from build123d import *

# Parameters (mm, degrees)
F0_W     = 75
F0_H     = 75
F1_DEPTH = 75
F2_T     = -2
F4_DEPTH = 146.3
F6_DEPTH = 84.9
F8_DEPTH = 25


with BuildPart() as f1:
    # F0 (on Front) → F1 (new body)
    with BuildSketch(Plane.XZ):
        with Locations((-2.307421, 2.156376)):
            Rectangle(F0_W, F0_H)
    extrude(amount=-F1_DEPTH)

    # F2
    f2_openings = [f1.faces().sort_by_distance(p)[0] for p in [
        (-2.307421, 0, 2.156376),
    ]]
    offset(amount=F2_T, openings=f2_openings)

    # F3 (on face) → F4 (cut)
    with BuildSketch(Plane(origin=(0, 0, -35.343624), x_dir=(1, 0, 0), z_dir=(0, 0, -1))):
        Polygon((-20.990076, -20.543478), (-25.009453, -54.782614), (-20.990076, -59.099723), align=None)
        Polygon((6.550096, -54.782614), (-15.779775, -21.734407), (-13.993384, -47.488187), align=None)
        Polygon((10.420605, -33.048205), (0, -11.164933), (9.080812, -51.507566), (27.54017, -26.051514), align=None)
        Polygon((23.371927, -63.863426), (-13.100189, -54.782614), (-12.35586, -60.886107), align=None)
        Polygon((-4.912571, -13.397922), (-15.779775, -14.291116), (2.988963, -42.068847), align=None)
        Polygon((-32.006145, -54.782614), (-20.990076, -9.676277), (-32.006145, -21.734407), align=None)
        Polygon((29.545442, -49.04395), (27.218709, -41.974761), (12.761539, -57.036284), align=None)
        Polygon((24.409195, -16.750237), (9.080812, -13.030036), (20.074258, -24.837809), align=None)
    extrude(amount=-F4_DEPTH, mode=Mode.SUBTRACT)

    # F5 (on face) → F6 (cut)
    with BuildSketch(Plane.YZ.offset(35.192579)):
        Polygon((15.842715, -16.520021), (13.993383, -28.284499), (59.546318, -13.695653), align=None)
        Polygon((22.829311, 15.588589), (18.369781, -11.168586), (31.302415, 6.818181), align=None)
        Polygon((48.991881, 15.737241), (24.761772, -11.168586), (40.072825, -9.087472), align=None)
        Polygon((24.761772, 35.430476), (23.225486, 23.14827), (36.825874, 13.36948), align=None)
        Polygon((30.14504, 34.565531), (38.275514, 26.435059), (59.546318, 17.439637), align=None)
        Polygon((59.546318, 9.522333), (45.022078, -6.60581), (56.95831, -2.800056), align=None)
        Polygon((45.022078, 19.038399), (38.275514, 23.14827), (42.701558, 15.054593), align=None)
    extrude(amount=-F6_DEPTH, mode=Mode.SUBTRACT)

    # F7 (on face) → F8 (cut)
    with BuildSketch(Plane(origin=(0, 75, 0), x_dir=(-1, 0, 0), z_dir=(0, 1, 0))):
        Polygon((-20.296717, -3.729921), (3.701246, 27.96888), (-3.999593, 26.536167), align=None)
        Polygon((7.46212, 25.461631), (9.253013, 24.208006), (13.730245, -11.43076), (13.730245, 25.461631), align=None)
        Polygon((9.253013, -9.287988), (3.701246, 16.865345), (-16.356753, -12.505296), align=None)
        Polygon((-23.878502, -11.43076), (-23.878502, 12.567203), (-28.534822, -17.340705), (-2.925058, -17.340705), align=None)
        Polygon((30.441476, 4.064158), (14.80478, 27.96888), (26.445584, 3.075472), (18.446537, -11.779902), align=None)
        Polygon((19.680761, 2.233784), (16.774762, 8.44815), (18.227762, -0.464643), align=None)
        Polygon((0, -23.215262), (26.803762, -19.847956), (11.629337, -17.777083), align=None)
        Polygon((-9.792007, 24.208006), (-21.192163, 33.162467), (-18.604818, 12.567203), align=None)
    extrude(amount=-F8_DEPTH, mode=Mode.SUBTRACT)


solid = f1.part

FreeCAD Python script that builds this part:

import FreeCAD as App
import Part
import Sketcher


def faces_at(feature, points):
    """Names of the faces that lie closest to the given points."""
    faces = feature.Shape.Faces
    near = lambda p: min(range(len(faces)), key=lambda i: faces[i].distToShape(Part.Vertex(*p))[0])
    return sorted({f"Face{near(p) + 1}" for p in points})

doc = App.newDocument("Part")
body = doc.addObject("PartDesign::Body", "Body")

sketch1 = body.newObject("Sketcher::SketchObject", "Sketch")
sketch1.AttachmentSupport = (doc.getObject("XZ_Plane"), [""])
sketch1.MapMode = "FlatFace"
sketch1.addGeometry([
    Part.LineSegment(App.Vector(-40, 40, 0), App.Vector(-40, -35, 0)),
    Part.LineSegment(App.Vector(-40, -35, 0), App.Vector(35, -35, 0)),
    Part.LineSegment(App.Vector(35, -35, 0), App.Vector(35, 40, 0)),
    Part.LineSegment(App.Vector(35, 40, 0), App.Vector(-40, 40, 0)),
], False)
sketch1.addConstraint([
    Sketcher.Constraint("Coincident", 0, 2, 1, 1),
    Sketcher.Constraint("Coincident", 1, 2, 2, 1),
    Sketcher.Constraint("Coincident", 2, 2, 3, 1),
    Sketcher.Constraint("Coincident", 3, 2, 0, 1),
    Sketcher.Constraint("Vertical", 0),
    Sketcher.Constraint("Horizontal", 1),
    Sketcher.Constraint("Vertical", 2),
    Sketcher.Constraint("Horizontal", 3),
    Sketcher.Constraint("Equal", 3, 0),
    Sketcher.Constraint("DistanceX", 1, 1, 1, 2, 75.0),
    Sketcher.Constraint("DistanceX", 0, 2, -1, 1, 39.807421),
    Sketcher.Constraint("DistanceY", 0, 2, -1, 1, 35.343624),
])
pad1 = body.newObject("PartDesign::Pad", "Pad")
pad1.Profile = sketch1
pad1.Length = 75
pad1.Reversed = True
doc.recompute()

thickness = body.newObject("PartDesign::Thickness", "Thickness")
thickness.Base = (pad1, faces_at(pad1, [(-2.307, 0, 2.156)]))
thickness.Value = 2
thickness.Reversed = True
thickness.Join = "Arc"

sketch2 = body.newObject("Sketcher::SketchObject", "Sketch001")
sketch2.AttachmentSupport = (doc.getObject("XY_Plane"), [""])
sketch2.MapMode = "FlatFace"
sketch2.AttachmentOffset = App.Placement(App.Vector(0, 0, -35.343624), App.Rotation())
sketch2.addGeometry([
    Part.LineSegment(App.Vector(-21, 21, 0), App.Vector(-25, 55, 0)),
    Part.LineSegment(App.Vector(-25, 55, 0), App.Vector(-21, 59, 0)),
    Part.LineSegment(App.Vector(-21, 59, 0), App.Vector(-21, 21, 0)),
    Part.LineSegment(App.Vector(7, 55, 0), App.Vector(-16, 22, 0)),
    Part.LineSegment(App.Vector(-16, 22, 0), App.Vector(-14, 47, 0)),
    Part.LineSegment(App.Vector(-14, 47, 0), App.Vector(7, 55, 0)),
    Part.LineSegment(App.Vector(10, 33, 0), App.Vector(0, 11, 0)),
    Part.LineSegment(App.Vector(0, 11, 0), App.Vector(9, 52, 0)),
    Part.LineSegment(App.Vector(9, 52, 0), App.Vector(28, 26, 0)),
    Part.LineSegment(App.Vector(28, 26, 0), App.Vector(10, 33, 0)),
    Part.LineSegment(App.Vector(23, 64, 0), App.Vector(-13, 55, 0)),
    Part.LineSegment(App.Vector(-13, 55, 0), App.Vector(-12, 61, 0)),
    Part.LineSegment(App.Vector(-12, 61, 0), App.Vector(23, 64, 0)),
    Part.LineSegment(App.Vector(-5, 13, 0), App.Vector(-16, 14, 0)),
    Part.LineSegment(App.Vector(-16, 14, 0), App.Vector(3, 42, 0)),
    Part.LineSegment(App.Vector(3, 42, 0), App.Vector(-5, 13, 0)),
    Part.LineSegment(App.Vector(-32, 55, 0), App.Vector(-21, 10, 0)),
    Part.LineSegment(App.Vector(-21, 10, 0), App.Vector(-32, 22, 0)),
    Part.LineSegment(App.Vector(-32, 22, 0), App.Vector(-32, 55, 0)),
    Part.LineSegment(App.Vector(30, 49, 0), App.Vector(27, 42, 0)),
    Part.LineSegment(App.Vector(27, 42, 0), App.Vector(13, 57, 0)),
    Part.LineSegment(App.Vector(13, 57, 0), App.Vector(30, 49, 0)),
    Part.LineSegment(App.Vector(24, 17, 0), App.Vector(9, 13, 0)),
    Part.LineSegment(App.Vector(9, 13, 0), App.Vector(20, 25, 0)),
    Part.LineSegment(App.Vector(20, 25, 0), App.Vector(24, 17, 0)),
], False)
sketch2.addConstraint([
    Sketcher.Constraint("Coincident", 0, 2, 1, 1),
    Sketcher.Constraint("Coincident", 1, 2, 2, 1),
    Sketcher.Constraint("Coincident", 2, 2, 0, 1),
    Sketcher.Constraint("Coincident", 3, 2, 4, 1),
    Sketcher.Constraint("Coincident", 4, 2, 5, 1),
    Sketcher.Constraint("Coincident", 5, 2, 3, 1),
    Sketcher.Constraint("Coincident", 6, 2, 7, 1),
    Sketcher.Constraint("Coincident", 7, 2, 8, 1),
    Sketcher.Constraint("Coincident", 8, 2, 9, 1),
    Sketcher.Constraint("Coincident", 9, 2, 6, 1),
    Sketcher.Constraint("Coincident", 10, 2, 11, 1),
    Sketcher.Constraint("Coincident", 11, 2, 12, 1),
    Sketcher.Constraint("Coincident", 12, 2, 10, 1),
    Sketcher.Constraint("Coincident", 13, 2, 14, 1),
    Sketcher.Constraint("Coincident", 14, 2, 15, 1),
    Sketcher.Constraint("Coincident", 15, 2, 13, 1),
    Sketcher.Constraint("Coincident", 16, 2, 17, 1),
    Sketcher.Constraint("Coincident", 17, 2, 18, 1),
    Sketcher.Constraint("Coincident", 18, 2, 16, 1),
    Sketcher.Constraint("Coincident", 19, 2, 20, 1),
    Sketcher.Constraint("Coincident", 20, 2, 21, 1),
    Sketcher.Constraint("Coincident", 21, 2, 19, 1),
    Sketcher.Constraint("Coincident", 22, 2, 23, 1),
    Sketcher.Constraint("Coincident", 23, 2, 24, 1),
    Sketcher.Constraint("Coincident", 24, 2, 22, 1),
    Sketcher.Constraint("Vertical", 2),
    Sketcher.Constraint("Vertical", 18),
    Sketcher.Constraint("PointOnObject", 6, 2, -2),
    Sketcher.Constraint("Parallel", 3, 14),
    Sketcher.Constraint("Perpendicular", 6, 21),
    Sketcher.Constraint("Parallel", 1, 23),
    Sketcher.Constraint("Horizontal", 0, 2, 5, 2),
    Sketcher.Constraint("Horizontal", 5, 2, 10, 2),
    Sketcher.Constraint("Horizontal", 3, 2, 17, 2),
    Sketcher.Constraint("Horizontal", 10, 2, 18, 2),
    Sketcher.Constraint("Vertical", 3, 2, 13, 2),
    Sketcher.Constraint("Vertical", 2, 2, 16, 2),
    Sketcher.Constraint("Vertical", 7, 2, 22, 2),
    Sketcher.Constraint("DistanceX", 10, 2, 7, 2, 22.181001),
    Sketcher.Constraint("DistanceX", 2, 2, 3, 2, 5.210301),
    Sketcher.Constraint("DistanceY", 8, 2, 5, 2, 28.7311),
    Sketcher.Constraint("DistanceY", 16, 2, 2, 2, 10.867201),
    Sketcher.Constraint("DistanceY", 22, 2, 24, 2, 3.720201),
    Sketcher.Constraint("Distance", 0, 34.474249),
    Sketcher.Constraint("Distance", 4, 25.815661),
    Sketcher.Constraint("Distance", 6, 24.23771),
    Sketcher.Constraint("Distance", 8, 31.44453),
    Sketcher.Constraint("Distance", 9, 18.494139),
    Sketcher.Constraint("Distance", 11, 6.148711),
    Sketcher.Constraint("Distance", 13, 10.903849),
    Sketcher.Constraint("Distance", 14, 33.524139),
    Sketcher.Constraint("Distance", 15, 29.739808),
    Sketcher.Constraint("Distance", 16, 46.432052),
    Sketcher.Constraint("Distance", 22, 15.773371),
    Sketcher.Constraint("DistanceY", 2, 2, 2, 1, 38.556245),
    Sketcher.Constraint("DistanceY", 18, 1, 18, 2, 33.048207),
    Sketcher.Constraint("DistanceY", -1, 1, 2, 2, 20.543478),
    Sketcher.Constraint("DistanceX", -1, 1, 8, 2, 27.54017),
    Sketcher.Constraint("DistanceX", 10, 2, -1, 1, 13.100189),
    Sketcher.Constraint("DistanceX", 11, 2, -1, 1, 12.35586),
    Sketcher.Constraint("DistanceX", 15, 2, -1, 1, 4.912571),
    Sketcher.Constraint("DistanceX", -1, 1, 19, 2, 27.218709),
    Sketcher.Constraint("DistanceY", -1, 1, 19, 2, 41.974761),
    Sketcher.Constraint("DistanceX", -1, 1, 20, 2, 12.761539),
    Sketcher.Constraint("DistanceY", -1, 1, 21, 2, 49.04395),
    Sketcher.Constraint("DistanceX", -1, 1, 23, 2, 20.074258),
    Sketcher.Constraint("DistanceY", -1, 1, 23, 2, 24.837809),
    Sketcher.Constraint("DistanceY", 0, 2, 1, 2, 4.317109),
    Sketcher.Constraint("DistanceX", 0, 2, 4, 2, 11.016069),
    Sketcher.Constraint("DistanceX", 4, 2, 5, 2, 20.54348),
    Sketcher.Constraint("DistanceY", 6, 2, 5, 2, 43.617681),
    Sketcher.Constraint("DistanceY", 7, 2, 12, 2, 12.35586),
    Sketcher.Constraint("DistanceX", 5, 2, 12, 2, 16.821831),
    Sketcher.Constraint("DistanceY", 13, 2, 3, 2, 7.443291),
    Sketcher.Constraint("DistanceY", 5, 2, 20, 2, 2.25367),
])
pocket1 = body.newObject("PartDesign::Pocket", "Pocket")
pocket1.Profile = sketch2
pocket1.Length = 146.3
pocket1.Reversed = True

sketch3 = body.newObject("Sketcher::SketchObject", "Sketch002")
sketch3.AttachmentSupport = (doc.getObject("YZ_Plane"), [""])
sketch3.MapMode = "FlatFace"
sketch3.AttachmentOffset = App.Placement(App.Vector(0, 0, 35.192579), App.Rotation())
sketch3.addGeometry([
    Part.LineSegment(App.Vector(15.842715, -16.520021, 0), App.Vector(13.993383, -28.284499, 0)),
    Part.LineSegment(App.Vector(13.993383, -28.284499, 0), App.Vector(59.546318, -13.695653, 0)),
    Part.LineSegment(App.Vector(59.546318, -13.695653, 0), App.Vector(15.842715, -16.520021, 0)),
    Part.LineSegment(App.Vector(22.829311, 15.588589, 0), App.Vector(18.369781, -11.168586, 0)),
    Part.LineSegment(App.Vector(18.369781, -11.168586, 0), App.Vector(31.302415, 6.818181, 0)),
    Part.LineSegment(App.Vector(31.302415, 6.818181, 0), App.Vector(22.829311, 15.588589, 0)),
    Part.LineSegment(App.Vector(48.991881, 15.737241, 0), App.Vector(24.761772, -11.168586, 0)),
    Part.LineSegment(App.Vector(24.761772, -11.168586, 0), App.Vector(40.072825, -9.087472, 0)),
    Part.LineSegment(App.Vector(40.072825, -9.087472, 0), App.Vector(48.991881, 15.737241, 0)),
    Part.LineSegment(App.Vector(24.761772, 35.430476, 0), App.Vector(23.225486, 23.14827, 0)),
    Part.LineSegment(App.Vector(23.225486, 23.14827, 0), App.Vector(36.825874, 13.36948, 0)),
    Part.LineSegment(App.Vector(36.825874, 13.36948, 0), App.Vector(24.761772, 35.430476, 0)),
    Part.LineSegment(App.Vector(30.14504, 34.565531, 0), App.Vector(38.275514, 26.435059, 0)),
    Part.LineSegment(App.Vector(38.275514, 26.435059, 0), App.Vector(59.546318, 17.439637, 0)),
    Part.LineSegment(App.Vector(59.546318, 17.439637, 0), App.Vector(30.14504, 34.565531, 0)),
    Part.LineSegment(App.Vector(59.546318, 9.522333, 0), App.Vector(45.022078, -6.60581, 0)),
    Part.LineSegment(App.Vector(45.022078, -6.60581, 0), App.Vector(56.95831, -2.800056, 0)),
    Part.LineSegment(App.Vector(56.95831, -2.800056, 0), App.Vector(59.546318, 9.522333, 0)),
    Part.LineSegment(App.Vector(45.022078, 19.038399, 0), App.Vector(38.275514, 23.14827, 0)),
    Part.LineSegment(App.Vector(38.275514, 23.14827, 0), App.Vector(42.701558, 15.054593, 0)),
    Part.LineSegment(App.Vector(42.701558, 15.054593, 0), App.Vector(45.022078, 19.038399, 0)),
], False)
sketch3.addConstraint([
    Sketcher.Constraint("Coincident", 0, 2, 1, 1),
    Sketcher.Constraint("Coincident", 1, 2, 2, 1),
    Sketcher.Constraint("Coincident", 2, 2, 0, 1),
    Sketcher.Constraint("Coincident", 3, 2, 4, 1),
    Sketcher.Constraint("Coincident", 4, 2, 5, 1),
    Sketcher.Constraint("Coincident", 5, 2, 3, 1),
    Sketcher.Constraint("Coincident", 6, 2, 7, 1),
    Sketcher.Constraint("Coincident", 7, 2, 8, 1),
    Sketcher.Constraint("Coincident", 8, 2, 6, 1),
    Sketcher.Constraint("Coincident", 9, 2, 10, 1),
    Sketcher.Constraint("Coincident", 10, 2, 11, 1),
    Sketcher.Constraint("Coincident", 11, 2, 9, 1),
    Sketcher.Constraint("Coincident", 12, 2, 13, 1),
    Sketcher.Constraint("Coincident", 13, 2, 14, 1),
    Sketcher.Constraint("Coincident", 14, 2, 12, 1),
    Sketcher.Constraint("Coincident", 15, 2, 16, 1),
    Sketcher.Constraint("Coincident", 16, 2, 17, 1),
    Sketcher.Constraint("Coincident", 17, 2, 15, 1),
    Sketcher.Constraint("Coincident", 18, 2, 19, 1),
    Sketcher.Constraint("Coincident", 19, 2, 20, 1),
    Sketcher.Constraint("Coincident", 20, 2, 18, 1),
    Sketcher.Constraint("DistanceY", 0, 2, -1, 1, 28.284499),
    Sketcher.Constraint("DistanceY", -1, 1, 20, 2, 19.038399),
    Sketcher.Constraint("DistanceX", 2, 2, 4, 2, 15.4597),
    Sketcher.Constraint("DistanceY", 2, 2, 4, 2, 23.338202),
    Sketcher.Constraint("DistanceY", 4, 2, 10, 2, 6.551299),
    Sketcher.Constraint("DistanceX", 11, 2, 10, 2, 12.064102),
    Sketcher.Constraint("Distance", 2, 43.794771),
    Sketcher.Constraint("Distance", 7, 15.451841),
    Sketcher.Constraint("Distance", 10, 16.750979),
    Sketcher.Constraint("Distance", 13, 23.09469),
    Sketcher.Constraint("Distance", 15, 21.70416),
    Sketcher.Constraint("Distance", 17, 12.591229),
    Sketcher.Constraint("Distance", 18, 7.899821),
    Sketcher.Constraint("Distance", 19, 9.224829),
    Sketcher.Constraint("Distance", 20, 4.610371),
    Sketcher.Constraint("DistanceY", 2, 2, -1, 1, 16.520021),
    Sketcher.Constraint("DistanceX", -1, 1, 3, 2, 18.369781),
    Sketcher.Constraint("DistanceX", -1, 1, 5, 2, 22.829311),
    Sketcher.Constraint("DistanceY", -1, 1, 5, 2, 15.588589),
    Sketcher.Constraint("DistanceX", -1, 1, 8, 2, 48.991881),
    Sketcher.Constraint("DistanceY", -1, 1, 8, 2, 15.737241),
    Sketcher.Constraint("DistanceY", -1, 1, 9, 2, 23.14827),
    Sketcher.Constraint("DistanceY", -1, 1, 12, 2, 26.435059),
    Sketcher.Constraint("DistanceX", -1, 1, 14, 2, 30.14504),
    Sketcher.Constraint("DistanceY", -1, 1, 14, 2, 34.565531),
    Sketcher.Constraint("DistanceY", 15, 2, -1, 1, 6.60581),
    Sketcher.Constraint("DistanceX", -1, 1, 16, 2, 56.95831),
    Sketcher.Constraint("DistanceY", -1, 1, 18, 2, 23.14827),
    Sketcher.Constraint("DistanceX", 0, 2, 5, 2, 8.835928),
    Sketcher.Constraint("DistanceY", 1, 2, 5, 2, 29.284242),
    Sketcher.Constraint("DistanceX", 3, 2, 6, 2, 6.391991),
    Sketcher.Constraint("DistanceX", 4, 2, 7, 2, 8.77041),
    Sketcher.Constraint("DistanceY", 1, 2, 7, 2, 4.608181),
    Sketcher.Constraint("DistanceX", 9, 2, 4, 2, 8.076929),
    Sketcher.Constraint("DistanceX", 5, 2, 11, 2, 1.932461),
    Sketcher.Constraint("DistanceX", 10, 2, 12, 2, 1.44964),
    Sketcher.Constraint("DistanceY", 13, 2, 12, 2, 8.995422),
    Sketcher.Constraint("DistanceX", 15, 2, 1, 2, 14.52424),
    Sketcher.Constraint("DistanceX", 16, 2, 17, 2, 2.588008),
    Sketcher.Constraint("DistanceX", 10, 2, 18, 2, 1.44964),
    Sketcher.Constraint("Distance", 3, 27.126257),
    Sketcher.Constraint("Distance", 9, 12.377914),
])
pocket2 = body.newObject("PartDesign::Pocket", "Pocket001")
pocket2.Profile = sketch3
pocket2.Length = 84.9

sketch4 = body.newObject("Sketcher::SketchObject", "Sketch003")
sketch4.AttachmentSupport = (doc.getObject("XZ_Plane"), [""])
sketch4.MapMode = "FlatFace"
sketch4.AttachmentOffset = App.Placement(App.Vector(0, 0, -75), App.Rotation())
sketch4.addGeometry([
    Part.LineSegment(App.Vector(20.296717, -3.729921, 0), App.Vector(-3.701246, 27.96888, 0)),
    Part.LineSegment(App.Vector(-3.701246, 27.96888, 0), App.Vector(3.999593, 26.536167, 0)),
    Part.LineSegment(App.Vector(3.999593, 26.536167, 0), App.Vector(20.296717, -3.729921, 0)),
    Part.LineSegment(App.Vector(-7.46212, 25.461631, 0), App.Vector(-9.253013, 24.208006, 0)),
    Part.LineSegment(App.Vector(-9.253013, 24.208006, 0), App.Vector(-13.730245, -11.43076, 0)),
    Part.LineSegment(App.Vector(-13.730245, -11.43076, 0), App.Vector(-13.730245, 25.461631, 0)),
    Part.LineSegment(App.Vector(-13.730245, 25.461631, 0), App.Vector(-7.46212, 25.461631, 0)),
    Part.LineSegment(App.Vector(-9.253013, -9.287988, 0), App.Vector(-3.701246, 16.865345, 0)),
    Part.LineSegment(App.Vector(-3.701246, 16.865345, 0), App.Vector(16.356753, -12.505296, 0)),
    Part.LineSegment(App.Vector(16.356753, -12.505296, 0), App.Vector(-9.253013, -9.287988, 0)),
    Part.LineSegment(App.Vector(23.878502, -11.43076, 0), App.Vector(23.878502, 12.567203, 0)),
    Part.LineSegment(App.Vector(23.878502, 12.567203, 0), App.Vector(28.534822, -17.340705, 0)),
    Part.LineSegment(App.Vector(28.534822, -17.340705, 0), App.Vector(2.925058, -17.340705, 0)),
    Part.LineSegment(App.Vector(2.925058, -17.340705, 0), App.Vector(23.878502, -11.43076, 0)),
    Part.LineSegment(App.Vector(-30.441476, 4.064158, 0), App.Vector(-14.80478, 27.96888, 0)),
    Part.LineSegment(App.Vector(-14.80478, 27.96888, 0), App.Vector(-26.445584, 3.075472, 0)),
    Part.LineSegment(App.Vector(-26.445584, 3.075472, 0), App.Vector(-18.446537, -11.779902, 0)),
    Part.LineSegment(App.Vector(-18.446537, -11.779902, 0), App.Vector(-30.441476, 4.064158, 0)),
    Part.LineSegment(App.Vector(-19.680761, 2.233784, 0), App.Vector(-16.774762, 8.44815, 0)),
    Part.LineSegment(App.Vector(-16.774762, 8.44815, 0), App.Vector(-18.227762, -0.464643, 0)),
    Part.LineSegment(App.Vector(-18.227762, -0.464643, 0), App.Vector(-19.680761, 2.233784, 0)),
    Part.LineSegment(App.Vector(0, -23.215262, 0), App.Vector(-26.803762, -19.847956, 0)),
    Part.LineSegment(App.Vector(-26.803762, -19.847956, 0), App.Vector(-11.629337, -17.777083, 0)),
    Part.LineSegment(App.Vector(-11.629337, -17.777083, 0), App.Vector(0, -23.215262, 0)),
    Part.LineSegment(App.Vector(9.792007, 24.208006, 0), App.Vector(21.192163, 33.162467, 0)),
    Part.LineSegment(App.Vector(21.192163, 33.162467, 0), App.Vector(18.604818, 12.567203, 0)),
    Part.LineSegment(App.Vector(18.604818, 12.567203, 0), App.Vector(9.792007, 24.208006, 0)),
], False)
sketch4.addConstraint([
    Sketcher.Constraint("Coincident", 0, 2, 1, 1),
    Sketcher.Constraint("Coincident", 1, 2, 2, 1),
    Sketcher.Constraint("Coincident", 2, 2, 0, 1),
    Sketcher.Constraint("Coincident", 3, 2, 4, 1),
    Sketcher.Constraint("Coincident", 4, 2, 5, 1),
    Sketcher.Constraint("Coincident", 5, 2, 6, 1),
    Sketcher.Constraint("Coincident", 6, 2, 3, 1),
    Sketcher.Constraint("Coincident", 7, 2, 8, 1),
    Sketcher.Constraint("Coincident", 8, 2, 9, 1),
    Sketcher.Constraint("Coincident", 9, 2, 7, 1),
    Sketcher.Constraint("Coincident", 10, 2, 11, 1),
    Sketcher.Constraint("Coincident", 11, 2, 12, 1),
    Sketcher.Constraint("Coincident", 12, 2, 13, 1),
    Sketcher.Constraint("Coincident", 13, 2, 10, 1),
    Sketcher.Constraint("Coincident", 14, 2, 15, 1),
    Sketcher.Constraint("Coincident", 15, 2, 16, 1),
    Sketcher.Constraint("Coincident", 16, 2, 17, 1),
    Sketcher.Constraint("Coincident", 17, 2, 14, 1),
    Sketcher.Constraint("Coincident", 18, 2, 19, 1),
    Sketcher.Constraint("Coincident", 19, 2, 20, 1),
    Sketcher.Constraint("Coincident", 20, 2, 18, 1),
    Sketcher.Constraint("Coincident", 21, 2, 22, 1),
    Sketcher.Constraint("Coincident", 22, 2, 23, 1),
    Sketcher.Constraint("Coincident", 23, 2, 21, 1),
    Sketcher.Constraint("Coincident", 24, 2, 25, 1),
    Sketcher.Constraint("Coincident", 25, 2, 26, 1),
    Sketcher.Constraint("Coincident", 26, 2, 24, 1),
    Sketcher.Constraint("Vertical", 5),
    Sketcher.Constraint("Horizontal", 6),
    Sketcher.Constraint("Vertical", 10),
    Sketcher.Constraint("Horizontal", 12),
    Sketcher.Constraint("PointOnObject", 23, 2, -2),
    Sketcher.Constraint("DistanceX", 4, 2, 0, 2, 10.028999),
    Sketcher.Constraint("DistanceX", 5, 2, 7, 2, 10.028999),
    Sketcher.Constraint("DistanceX", 4, 2, 8, 2, 30.086998),
    Sketcher.Constraint("DistanceX", 19, 2, 18, 2, 1.453),
    Sketcher.Constraint("DistanceX", 20, 2, 19, 2, 1.452999),
    Sketcher.Constraint("DistanceX", 21, 2, 19, 2, 8.576),
    Sketcher.Constraint("Distance", 4, 35.918898),
    Sketcher.Constraint("Distance", 7, 26.736098),
    Sketcher.Constraint("Distance", 14, 28.564698),
    Sketcher.Constraint("DistanceY", 5, 1, 5, 2, 36.892391),
    Sketcher.Constraint("DistanceY", 2, 2, 0, 2, 31.698801),
    Sketcher.Constraint("DistanceY", 8, 2, 10, 2, 25.072499),
    Sketcher.Constraint("DistanceX", 16, 2, 22, 2, 6.8172),
    Sketcher.Constraint("DistanceY", 1, 2, 24, 2, 6.6263),
    Sketcher.Constraint("DistanceX", 25, 2, 2, 2, 1.691899),
    Sketcher.Constraint("Distance", 0, 39.758222),
    Sketcher.Constraint("Distance", 1, 7.832981),
    Sketcher.Constraint("Distance", 2, 34.374879),
    Sketcher.Constraint("Distance", 13, 21.77095),
    Sketcher.Constraint("Distance", 15, 27.480722),
    Sketcher.Constraint("Distance", 18, 6.860261),
    Sketcher.Constraint("Distance", 21, 27.014448),
    Sketcher.Constraint("Distance", 22, 15.31508),
    Sketcher.Constraint("Distance", 23, 12.83804),
    Sketcher.Constraint("Distance", 24, 14.496411),
    Sketcher.Constraint("Distance", 25, 20.757149),
    Sketcher.Constraint("DistanceX", 6, 1, 6, 2, 6.268125),
    Sketcher.Constraint("DistanceX", 12, 2, 12, 1, 25.609764),
    Sketcher.Constraint("DistanceY", 10, 1, 10, 2, 23.997963),
    Sketcher.Constraint("DistanceY", -1, 1, 0, 2, 27.96888),
    Sketcher.Constraint("DistanceY", 4, 2, -1, 1, 11.43076),
    Sketcher.Constraint("DistanceX", 6, 2, -1, 1, 7.46212),
    Sketcher.Constraint("DistanceX", -1, 1, 11, 2, 28.534822),
    Sketcher.Constraint("DistanceY", 13, 2, -1, 1, 11.43076),
    Sketcher.Constraint("DistanceX", 14, 2, -1, 1, 14.80478),
    Sketcher.Constraint("DistanceY", -1, 1, 14, 2, 27.96888),
    Sketcher.Constraint("DistanceY", -1, 1, 15, 2, 3.075472),
    Sketcher.Constraint("DistanceX", 18, 2, -1, 1, 16.774762),
    Sketcher.Constraint("DistanceY", -1, 1, 18, 2, 8.44815),
    Sketcher.Constraint("DistanceY", 23, 2, -1, 1, 23.215262),
    Sketcher.Constraint("DistanceY", 3, 2, 1, 2, 2.328161),
    Sketcher.Constraint("DistanceY", 7, 2, 3, 2, 7.342661),
    Sketcher.Constraint("DistanceY", 4, 2, 9, 2, 2.142772),
    Sketcher.Constraint("DistanceX", 1, 2, 10, 2, 19.878909),
    Sketcher.Constraint("DistanceX", 17, 2, 16, 2, 11.994939),
    Sketcher.Constraint("DistanceY", 16, 2, 17, 2, 15.84406),
    Sketcher.Constraint("DistanceY", 16, 2, 19, 2, 11.315259),
    Sketcher.Constraint("DistanceX", 1, 2, 24, 2, 17.19257),
    Sketcher.Constraint("DistanceY", 26, 2, 1, 2, 2.328161),
])
pocket3 = body.newObject("PartDesign::Pocket", "Pocket002")
pocket3.Profile = sketch4
pocket3.Length = 25
pocket3.Reversed = True

doc.recompute()
